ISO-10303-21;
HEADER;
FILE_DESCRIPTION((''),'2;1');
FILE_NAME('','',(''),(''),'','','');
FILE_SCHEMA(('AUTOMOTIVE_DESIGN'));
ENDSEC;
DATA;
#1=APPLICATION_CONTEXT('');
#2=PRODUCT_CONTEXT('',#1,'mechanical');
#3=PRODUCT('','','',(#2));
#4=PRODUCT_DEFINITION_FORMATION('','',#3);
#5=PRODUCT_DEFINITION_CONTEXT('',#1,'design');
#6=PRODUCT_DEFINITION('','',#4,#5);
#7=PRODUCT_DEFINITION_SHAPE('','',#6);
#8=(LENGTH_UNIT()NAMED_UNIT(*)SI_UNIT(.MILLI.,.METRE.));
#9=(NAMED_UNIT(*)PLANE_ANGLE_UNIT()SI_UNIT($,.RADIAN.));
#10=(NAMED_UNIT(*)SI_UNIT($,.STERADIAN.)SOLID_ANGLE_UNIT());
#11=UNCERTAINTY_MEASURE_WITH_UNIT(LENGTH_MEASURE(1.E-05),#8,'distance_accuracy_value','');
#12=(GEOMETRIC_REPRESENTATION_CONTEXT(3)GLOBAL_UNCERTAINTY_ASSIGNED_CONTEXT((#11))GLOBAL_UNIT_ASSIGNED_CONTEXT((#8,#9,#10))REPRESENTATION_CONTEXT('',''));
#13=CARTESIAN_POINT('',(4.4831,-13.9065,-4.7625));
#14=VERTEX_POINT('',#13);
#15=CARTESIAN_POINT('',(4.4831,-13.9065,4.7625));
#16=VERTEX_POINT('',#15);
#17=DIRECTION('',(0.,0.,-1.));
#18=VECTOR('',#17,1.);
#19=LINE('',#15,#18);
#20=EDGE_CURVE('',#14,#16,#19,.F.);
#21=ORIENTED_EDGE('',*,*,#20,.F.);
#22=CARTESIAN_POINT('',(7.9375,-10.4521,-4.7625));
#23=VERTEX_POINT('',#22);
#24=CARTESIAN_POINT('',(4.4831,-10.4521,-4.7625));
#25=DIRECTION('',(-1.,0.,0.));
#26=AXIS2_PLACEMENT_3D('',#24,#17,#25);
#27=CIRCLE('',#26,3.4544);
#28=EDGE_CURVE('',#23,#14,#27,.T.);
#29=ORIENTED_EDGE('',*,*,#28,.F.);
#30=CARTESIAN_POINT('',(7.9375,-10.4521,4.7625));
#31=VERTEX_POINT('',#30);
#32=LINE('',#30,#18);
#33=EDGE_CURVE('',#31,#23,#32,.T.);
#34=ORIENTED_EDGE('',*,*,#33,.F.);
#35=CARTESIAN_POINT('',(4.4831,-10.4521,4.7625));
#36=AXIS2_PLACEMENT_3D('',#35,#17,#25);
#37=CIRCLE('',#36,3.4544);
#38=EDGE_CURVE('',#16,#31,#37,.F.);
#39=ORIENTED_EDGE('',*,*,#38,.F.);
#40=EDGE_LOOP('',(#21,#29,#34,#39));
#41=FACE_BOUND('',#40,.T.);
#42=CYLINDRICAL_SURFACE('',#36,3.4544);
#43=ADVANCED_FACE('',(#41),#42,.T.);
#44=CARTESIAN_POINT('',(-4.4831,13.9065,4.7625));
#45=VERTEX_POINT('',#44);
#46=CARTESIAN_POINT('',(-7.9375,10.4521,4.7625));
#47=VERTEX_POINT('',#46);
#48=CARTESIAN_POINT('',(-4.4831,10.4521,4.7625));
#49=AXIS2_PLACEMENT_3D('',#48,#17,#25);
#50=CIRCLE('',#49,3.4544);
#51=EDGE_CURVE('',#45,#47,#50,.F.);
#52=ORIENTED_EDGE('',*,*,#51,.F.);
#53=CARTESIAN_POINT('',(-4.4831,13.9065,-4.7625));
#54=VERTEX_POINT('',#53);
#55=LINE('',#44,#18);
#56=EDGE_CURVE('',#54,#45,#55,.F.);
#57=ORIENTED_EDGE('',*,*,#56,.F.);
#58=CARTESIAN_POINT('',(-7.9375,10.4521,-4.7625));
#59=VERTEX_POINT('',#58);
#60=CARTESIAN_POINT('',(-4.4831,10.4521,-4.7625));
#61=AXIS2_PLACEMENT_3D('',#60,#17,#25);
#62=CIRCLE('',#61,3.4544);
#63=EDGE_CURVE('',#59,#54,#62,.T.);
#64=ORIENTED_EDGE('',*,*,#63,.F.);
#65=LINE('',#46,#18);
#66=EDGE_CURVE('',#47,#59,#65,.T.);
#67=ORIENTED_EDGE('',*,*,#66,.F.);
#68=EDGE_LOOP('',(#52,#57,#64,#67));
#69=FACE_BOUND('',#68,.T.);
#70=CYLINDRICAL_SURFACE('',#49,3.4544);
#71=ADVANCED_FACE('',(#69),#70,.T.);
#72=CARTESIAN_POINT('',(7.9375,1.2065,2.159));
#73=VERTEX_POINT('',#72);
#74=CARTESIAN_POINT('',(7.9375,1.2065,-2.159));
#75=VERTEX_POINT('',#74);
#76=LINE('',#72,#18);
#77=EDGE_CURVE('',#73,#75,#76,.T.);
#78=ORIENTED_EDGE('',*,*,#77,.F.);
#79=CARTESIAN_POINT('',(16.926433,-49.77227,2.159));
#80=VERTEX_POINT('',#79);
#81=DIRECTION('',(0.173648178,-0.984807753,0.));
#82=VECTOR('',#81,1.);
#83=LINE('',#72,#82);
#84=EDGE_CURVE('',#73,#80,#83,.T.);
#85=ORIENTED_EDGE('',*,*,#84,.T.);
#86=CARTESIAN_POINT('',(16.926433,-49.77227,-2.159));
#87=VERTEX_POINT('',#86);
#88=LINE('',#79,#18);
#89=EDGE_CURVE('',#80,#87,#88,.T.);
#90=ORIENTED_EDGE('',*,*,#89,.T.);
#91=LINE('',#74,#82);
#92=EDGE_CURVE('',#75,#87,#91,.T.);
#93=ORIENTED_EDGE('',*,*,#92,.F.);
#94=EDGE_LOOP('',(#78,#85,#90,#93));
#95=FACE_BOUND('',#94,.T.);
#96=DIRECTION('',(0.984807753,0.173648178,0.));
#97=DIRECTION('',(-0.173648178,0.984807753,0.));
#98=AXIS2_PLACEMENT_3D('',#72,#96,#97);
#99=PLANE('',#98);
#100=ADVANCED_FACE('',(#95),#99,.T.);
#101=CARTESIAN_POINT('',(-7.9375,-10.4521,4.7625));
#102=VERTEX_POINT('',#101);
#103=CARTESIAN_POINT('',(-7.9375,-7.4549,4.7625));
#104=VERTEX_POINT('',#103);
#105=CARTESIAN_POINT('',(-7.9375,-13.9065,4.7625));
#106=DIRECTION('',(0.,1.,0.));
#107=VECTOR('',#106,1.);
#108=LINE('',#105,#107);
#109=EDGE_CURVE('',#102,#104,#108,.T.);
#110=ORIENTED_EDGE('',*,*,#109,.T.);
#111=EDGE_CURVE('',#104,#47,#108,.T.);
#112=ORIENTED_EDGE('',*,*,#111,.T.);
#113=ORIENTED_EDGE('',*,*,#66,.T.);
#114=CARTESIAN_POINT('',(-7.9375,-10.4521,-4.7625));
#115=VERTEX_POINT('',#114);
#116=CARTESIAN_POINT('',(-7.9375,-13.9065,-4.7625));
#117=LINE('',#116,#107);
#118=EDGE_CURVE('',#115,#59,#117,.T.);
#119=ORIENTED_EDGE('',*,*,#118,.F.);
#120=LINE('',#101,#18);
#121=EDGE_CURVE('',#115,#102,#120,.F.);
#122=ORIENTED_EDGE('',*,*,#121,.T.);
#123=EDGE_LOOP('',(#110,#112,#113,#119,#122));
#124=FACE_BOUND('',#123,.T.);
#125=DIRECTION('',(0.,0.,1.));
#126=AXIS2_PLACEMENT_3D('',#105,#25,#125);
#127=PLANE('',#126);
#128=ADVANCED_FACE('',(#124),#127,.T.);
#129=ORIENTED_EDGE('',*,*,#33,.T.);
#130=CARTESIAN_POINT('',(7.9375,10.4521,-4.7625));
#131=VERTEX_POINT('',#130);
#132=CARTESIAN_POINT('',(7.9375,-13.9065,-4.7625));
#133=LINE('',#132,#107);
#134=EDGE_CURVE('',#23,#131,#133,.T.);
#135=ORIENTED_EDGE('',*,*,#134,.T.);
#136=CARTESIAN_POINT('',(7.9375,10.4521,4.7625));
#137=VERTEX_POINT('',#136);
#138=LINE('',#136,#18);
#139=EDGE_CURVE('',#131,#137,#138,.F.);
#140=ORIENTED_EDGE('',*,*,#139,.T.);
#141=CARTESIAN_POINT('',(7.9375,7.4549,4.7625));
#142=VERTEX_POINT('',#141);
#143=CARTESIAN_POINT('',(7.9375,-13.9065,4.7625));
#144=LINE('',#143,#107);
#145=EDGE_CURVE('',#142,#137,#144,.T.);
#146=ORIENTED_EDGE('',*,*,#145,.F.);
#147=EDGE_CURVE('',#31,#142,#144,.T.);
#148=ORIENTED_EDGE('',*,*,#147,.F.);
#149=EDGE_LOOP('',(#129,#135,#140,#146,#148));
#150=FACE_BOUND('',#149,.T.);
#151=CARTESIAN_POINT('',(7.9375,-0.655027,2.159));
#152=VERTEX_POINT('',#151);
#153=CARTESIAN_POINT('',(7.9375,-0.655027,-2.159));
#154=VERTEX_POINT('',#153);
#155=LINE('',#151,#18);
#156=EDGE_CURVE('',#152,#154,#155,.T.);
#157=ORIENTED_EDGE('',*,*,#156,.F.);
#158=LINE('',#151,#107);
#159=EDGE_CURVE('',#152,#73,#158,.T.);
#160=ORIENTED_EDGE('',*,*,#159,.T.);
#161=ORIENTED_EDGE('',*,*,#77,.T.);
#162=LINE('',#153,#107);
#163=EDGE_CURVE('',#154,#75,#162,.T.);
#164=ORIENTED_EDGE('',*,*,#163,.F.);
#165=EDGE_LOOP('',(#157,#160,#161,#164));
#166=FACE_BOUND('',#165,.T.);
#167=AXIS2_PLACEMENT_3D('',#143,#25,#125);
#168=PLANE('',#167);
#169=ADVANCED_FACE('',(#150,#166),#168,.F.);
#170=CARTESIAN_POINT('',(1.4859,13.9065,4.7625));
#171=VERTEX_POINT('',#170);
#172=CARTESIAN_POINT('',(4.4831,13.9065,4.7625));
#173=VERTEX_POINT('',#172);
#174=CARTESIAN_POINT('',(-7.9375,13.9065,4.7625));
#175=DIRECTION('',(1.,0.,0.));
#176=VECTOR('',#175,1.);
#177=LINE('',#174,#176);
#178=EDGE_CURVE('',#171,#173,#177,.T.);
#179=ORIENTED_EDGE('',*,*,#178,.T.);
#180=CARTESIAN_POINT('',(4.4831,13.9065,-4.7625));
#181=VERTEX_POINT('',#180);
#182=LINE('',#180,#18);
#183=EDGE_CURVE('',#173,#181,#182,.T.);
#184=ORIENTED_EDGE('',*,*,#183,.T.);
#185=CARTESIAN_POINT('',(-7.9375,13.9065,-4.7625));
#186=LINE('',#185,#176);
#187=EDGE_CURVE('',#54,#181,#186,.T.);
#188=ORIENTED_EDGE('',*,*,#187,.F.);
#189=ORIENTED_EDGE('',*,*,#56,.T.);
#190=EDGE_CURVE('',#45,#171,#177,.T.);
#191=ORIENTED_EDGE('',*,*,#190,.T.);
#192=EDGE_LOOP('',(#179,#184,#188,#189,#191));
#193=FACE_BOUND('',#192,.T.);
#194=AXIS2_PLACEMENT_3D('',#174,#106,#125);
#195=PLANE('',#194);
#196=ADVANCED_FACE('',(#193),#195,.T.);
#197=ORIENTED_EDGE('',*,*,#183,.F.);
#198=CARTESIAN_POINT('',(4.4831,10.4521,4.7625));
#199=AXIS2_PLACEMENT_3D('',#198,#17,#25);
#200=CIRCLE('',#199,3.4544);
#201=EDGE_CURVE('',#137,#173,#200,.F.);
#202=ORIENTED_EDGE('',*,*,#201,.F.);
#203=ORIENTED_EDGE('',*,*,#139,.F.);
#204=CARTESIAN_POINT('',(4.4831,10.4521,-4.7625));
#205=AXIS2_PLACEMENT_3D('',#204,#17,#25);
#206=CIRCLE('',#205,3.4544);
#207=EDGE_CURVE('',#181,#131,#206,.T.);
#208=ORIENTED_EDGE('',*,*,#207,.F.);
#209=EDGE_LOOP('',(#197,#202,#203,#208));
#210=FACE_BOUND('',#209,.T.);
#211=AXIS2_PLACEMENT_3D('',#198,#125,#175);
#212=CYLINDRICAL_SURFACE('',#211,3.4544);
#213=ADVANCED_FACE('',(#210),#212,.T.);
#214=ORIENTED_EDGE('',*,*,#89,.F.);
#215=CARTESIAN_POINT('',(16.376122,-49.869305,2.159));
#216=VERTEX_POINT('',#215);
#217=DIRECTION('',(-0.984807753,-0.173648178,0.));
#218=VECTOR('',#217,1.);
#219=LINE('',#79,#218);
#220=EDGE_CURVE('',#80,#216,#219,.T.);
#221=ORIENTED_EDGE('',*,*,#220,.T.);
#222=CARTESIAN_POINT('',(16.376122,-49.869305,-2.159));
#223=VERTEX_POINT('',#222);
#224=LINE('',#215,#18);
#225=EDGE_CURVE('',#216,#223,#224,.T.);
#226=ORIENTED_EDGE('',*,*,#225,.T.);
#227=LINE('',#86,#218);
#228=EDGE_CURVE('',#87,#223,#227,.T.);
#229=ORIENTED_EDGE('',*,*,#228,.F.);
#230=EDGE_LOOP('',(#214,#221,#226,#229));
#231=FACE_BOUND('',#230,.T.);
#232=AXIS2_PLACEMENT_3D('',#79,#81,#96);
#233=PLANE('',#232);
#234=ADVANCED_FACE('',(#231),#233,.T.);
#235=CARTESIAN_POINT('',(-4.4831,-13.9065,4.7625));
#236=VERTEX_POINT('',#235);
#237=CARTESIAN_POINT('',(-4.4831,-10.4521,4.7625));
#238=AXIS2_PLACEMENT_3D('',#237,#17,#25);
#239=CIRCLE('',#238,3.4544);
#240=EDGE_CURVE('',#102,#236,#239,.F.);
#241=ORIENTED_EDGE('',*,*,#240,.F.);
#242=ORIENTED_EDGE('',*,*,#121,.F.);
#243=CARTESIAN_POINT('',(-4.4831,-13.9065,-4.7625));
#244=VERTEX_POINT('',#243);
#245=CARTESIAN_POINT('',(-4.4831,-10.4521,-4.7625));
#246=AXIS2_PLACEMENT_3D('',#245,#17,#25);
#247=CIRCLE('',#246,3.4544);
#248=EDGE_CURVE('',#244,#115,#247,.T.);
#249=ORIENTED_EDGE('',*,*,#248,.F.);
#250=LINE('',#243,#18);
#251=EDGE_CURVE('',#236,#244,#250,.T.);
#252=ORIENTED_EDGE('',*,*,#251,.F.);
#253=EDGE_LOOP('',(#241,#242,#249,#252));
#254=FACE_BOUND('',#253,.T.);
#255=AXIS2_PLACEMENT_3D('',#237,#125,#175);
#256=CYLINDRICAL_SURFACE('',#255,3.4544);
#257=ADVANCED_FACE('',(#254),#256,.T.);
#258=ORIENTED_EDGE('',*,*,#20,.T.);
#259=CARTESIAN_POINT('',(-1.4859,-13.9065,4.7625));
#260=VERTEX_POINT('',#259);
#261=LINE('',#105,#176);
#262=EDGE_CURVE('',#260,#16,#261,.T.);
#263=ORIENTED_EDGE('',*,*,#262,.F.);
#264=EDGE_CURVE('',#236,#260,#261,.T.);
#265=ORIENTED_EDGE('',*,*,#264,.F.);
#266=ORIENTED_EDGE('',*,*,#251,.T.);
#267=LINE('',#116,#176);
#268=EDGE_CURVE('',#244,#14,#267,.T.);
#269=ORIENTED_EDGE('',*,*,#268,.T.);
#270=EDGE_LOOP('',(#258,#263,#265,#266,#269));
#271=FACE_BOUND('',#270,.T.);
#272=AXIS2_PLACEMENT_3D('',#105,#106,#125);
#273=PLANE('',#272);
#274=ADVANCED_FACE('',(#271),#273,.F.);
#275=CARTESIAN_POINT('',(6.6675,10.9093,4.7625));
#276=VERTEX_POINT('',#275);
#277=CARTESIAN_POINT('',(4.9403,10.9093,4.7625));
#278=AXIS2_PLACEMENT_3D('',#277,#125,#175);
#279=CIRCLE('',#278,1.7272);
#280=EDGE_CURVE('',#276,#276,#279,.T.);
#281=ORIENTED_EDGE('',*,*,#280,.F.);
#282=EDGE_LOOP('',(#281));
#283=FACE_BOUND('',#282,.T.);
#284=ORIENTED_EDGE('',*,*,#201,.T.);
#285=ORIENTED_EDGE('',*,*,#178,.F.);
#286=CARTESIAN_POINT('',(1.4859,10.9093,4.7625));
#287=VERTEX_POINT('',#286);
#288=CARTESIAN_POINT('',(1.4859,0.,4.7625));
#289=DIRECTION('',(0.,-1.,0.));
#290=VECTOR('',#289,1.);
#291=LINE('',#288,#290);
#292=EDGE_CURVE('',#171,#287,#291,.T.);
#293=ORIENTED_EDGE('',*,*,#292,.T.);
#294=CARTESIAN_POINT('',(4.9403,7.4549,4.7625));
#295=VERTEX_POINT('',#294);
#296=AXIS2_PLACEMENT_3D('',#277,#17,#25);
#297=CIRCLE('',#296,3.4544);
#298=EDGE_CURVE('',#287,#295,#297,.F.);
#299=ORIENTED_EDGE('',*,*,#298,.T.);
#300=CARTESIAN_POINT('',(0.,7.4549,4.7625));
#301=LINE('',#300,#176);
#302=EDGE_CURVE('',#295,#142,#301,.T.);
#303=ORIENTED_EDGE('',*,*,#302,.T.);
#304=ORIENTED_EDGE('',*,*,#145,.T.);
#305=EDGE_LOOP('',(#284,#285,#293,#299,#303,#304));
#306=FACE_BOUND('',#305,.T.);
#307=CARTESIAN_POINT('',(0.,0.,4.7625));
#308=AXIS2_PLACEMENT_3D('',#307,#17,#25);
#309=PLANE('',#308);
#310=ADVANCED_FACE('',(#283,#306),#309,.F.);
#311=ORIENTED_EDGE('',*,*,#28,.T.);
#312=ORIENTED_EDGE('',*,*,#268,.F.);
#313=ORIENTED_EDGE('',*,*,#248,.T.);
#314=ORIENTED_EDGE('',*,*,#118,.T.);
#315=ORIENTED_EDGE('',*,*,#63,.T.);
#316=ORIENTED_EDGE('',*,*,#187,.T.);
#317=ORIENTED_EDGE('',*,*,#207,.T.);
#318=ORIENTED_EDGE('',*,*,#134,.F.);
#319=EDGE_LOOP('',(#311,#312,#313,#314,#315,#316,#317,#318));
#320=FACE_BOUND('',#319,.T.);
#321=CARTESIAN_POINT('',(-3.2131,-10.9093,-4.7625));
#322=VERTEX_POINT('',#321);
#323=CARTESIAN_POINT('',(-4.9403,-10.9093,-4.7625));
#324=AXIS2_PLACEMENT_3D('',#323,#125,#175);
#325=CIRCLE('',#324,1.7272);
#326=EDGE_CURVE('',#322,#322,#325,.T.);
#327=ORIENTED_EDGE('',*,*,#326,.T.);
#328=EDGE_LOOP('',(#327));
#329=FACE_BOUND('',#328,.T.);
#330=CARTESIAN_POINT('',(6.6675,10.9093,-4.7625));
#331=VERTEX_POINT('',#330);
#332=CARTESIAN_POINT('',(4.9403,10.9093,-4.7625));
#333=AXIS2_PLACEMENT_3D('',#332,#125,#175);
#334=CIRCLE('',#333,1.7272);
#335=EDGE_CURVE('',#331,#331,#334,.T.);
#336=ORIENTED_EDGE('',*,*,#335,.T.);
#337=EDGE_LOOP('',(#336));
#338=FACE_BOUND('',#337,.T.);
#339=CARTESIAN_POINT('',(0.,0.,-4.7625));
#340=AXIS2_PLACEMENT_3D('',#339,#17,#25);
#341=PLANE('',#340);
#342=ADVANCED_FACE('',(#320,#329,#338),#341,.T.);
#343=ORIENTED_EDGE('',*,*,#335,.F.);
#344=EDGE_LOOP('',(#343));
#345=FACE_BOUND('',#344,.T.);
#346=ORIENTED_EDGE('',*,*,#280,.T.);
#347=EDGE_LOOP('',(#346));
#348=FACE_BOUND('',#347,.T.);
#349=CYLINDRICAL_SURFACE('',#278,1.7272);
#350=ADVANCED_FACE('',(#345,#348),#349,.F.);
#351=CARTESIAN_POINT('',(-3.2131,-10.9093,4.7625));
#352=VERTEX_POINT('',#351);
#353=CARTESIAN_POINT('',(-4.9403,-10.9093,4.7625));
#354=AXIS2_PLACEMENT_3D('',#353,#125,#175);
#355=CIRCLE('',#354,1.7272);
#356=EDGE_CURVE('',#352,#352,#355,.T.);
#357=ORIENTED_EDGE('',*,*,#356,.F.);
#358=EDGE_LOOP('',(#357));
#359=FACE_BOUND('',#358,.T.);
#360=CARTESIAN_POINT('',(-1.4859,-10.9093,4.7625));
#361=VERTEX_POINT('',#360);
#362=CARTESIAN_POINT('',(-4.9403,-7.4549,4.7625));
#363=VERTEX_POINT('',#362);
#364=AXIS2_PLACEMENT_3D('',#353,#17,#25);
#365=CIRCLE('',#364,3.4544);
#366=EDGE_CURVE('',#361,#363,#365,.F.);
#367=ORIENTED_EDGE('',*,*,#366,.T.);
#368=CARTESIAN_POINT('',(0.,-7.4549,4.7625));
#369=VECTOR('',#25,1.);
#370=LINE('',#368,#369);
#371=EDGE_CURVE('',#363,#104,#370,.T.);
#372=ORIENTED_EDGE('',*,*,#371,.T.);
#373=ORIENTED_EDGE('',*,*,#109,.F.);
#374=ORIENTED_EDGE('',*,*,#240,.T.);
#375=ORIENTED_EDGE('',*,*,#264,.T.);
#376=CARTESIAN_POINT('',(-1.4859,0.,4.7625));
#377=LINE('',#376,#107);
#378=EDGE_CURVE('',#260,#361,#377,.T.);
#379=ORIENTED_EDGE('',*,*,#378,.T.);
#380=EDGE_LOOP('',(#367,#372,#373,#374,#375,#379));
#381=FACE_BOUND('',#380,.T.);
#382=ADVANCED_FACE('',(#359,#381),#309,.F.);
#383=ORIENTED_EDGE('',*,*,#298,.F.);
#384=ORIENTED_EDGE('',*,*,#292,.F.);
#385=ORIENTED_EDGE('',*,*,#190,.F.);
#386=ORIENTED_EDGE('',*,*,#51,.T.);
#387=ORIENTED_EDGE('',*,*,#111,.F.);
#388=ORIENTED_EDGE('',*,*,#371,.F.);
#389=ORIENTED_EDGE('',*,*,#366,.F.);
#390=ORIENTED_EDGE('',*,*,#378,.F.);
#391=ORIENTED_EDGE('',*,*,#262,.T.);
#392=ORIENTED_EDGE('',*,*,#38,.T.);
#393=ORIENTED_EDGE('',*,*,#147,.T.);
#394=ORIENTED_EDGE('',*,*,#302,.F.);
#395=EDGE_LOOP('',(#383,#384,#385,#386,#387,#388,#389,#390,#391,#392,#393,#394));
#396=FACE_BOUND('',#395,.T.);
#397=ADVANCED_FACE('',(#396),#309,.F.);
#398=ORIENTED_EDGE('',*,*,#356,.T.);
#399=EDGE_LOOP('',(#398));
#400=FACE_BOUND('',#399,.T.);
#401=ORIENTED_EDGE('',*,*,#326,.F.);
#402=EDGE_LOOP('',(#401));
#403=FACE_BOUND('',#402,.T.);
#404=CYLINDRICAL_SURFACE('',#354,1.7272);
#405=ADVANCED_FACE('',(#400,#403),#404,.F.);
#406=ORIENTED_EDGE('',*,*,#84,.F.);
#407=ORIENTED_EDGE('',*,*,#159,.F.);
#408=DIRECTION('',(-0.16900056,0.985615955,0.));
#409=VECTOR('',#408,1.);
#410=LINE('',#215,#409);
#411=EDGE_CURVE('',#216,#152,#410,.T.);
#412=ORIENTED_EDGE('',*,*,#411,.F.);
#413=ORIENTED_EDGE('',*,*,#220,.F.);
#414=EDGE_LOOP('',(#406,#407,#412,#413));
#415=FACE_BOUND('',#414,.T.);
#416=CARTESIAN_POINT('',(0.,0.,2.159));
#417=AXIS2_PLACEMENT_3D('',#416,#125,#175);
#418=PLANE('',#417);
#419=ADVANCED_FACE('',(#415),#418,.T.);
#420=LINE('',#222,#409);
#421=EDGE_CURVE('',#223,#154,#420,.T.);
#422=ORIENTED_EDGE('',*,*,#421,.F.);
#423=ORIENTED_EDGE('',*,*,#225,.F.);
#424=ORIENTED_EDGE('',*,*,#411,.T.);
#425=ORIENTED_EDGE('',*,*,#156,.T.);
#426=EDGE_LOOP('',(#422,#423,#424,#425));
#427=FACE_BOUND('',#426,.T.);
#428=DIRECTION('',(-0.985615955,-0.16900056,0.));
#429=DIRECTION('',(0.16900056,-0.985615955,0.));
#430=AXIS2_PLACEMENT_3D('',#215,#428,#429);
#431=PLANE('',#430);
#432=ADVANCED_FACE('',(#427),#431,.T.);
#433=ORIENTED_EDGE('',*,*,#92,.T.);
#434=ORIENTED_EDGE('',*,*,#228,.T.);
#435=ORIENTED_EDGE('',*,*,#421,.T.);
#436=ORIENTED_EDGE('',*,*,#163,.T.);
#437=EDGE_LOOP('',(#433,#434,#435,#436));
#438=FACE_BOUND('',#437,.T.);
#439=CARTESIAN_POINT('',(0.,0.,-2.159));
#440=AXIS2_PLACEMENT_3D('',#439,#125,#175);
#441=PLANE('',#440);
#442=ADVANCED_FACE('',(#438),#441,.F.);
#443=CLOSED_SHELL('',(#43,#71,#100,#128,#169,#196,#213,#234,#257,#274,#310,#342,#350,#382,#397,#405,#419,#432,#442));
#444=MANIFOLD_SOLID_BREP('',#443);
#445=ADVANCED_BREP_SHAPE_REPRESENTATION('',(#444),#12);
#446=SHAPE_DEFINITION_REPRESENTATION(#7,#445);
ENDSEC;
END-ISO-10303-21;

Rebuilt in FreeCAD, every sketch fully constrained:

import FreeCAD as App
import Part
import Sketcher

V = App.Vector
Q = App.Units.Quantity


def edges_at(feature, points):
    """Names of the edges that pass closest to the given points."""
    edges = feature.Shape.Edges
    near = lambda p: min(range(len(edges)), key=lambda i: edges[i].distToShape(Part.Vertex(*p))[0])
    return sorted({f"Edge{near(p) + 1}" for p in points})


def add_polygon(sketch, points):
    """Adds a closed chain of lines whose ends are joined by coincident constraints."""
    first, n = sketch.GeometryCount, len(points)
    for a, b in zip(points, points[1:] + points[:1]):
        sketch.addGeometry(Part.LineSegment(App.Vector(*a, 0), App.Vector(*b, 0)), False)
    for i in range(n):
        sketch.addConstraint(Sketcher.Constraint("Coincident", first + i, 2, first + (i + 1) % n, 1))

doc = App.newDocument("Part")
body = doc.addObject("PartDesign::Body", "Body")

# Sketch on XY plane
sketch1 = doc.addObject("Sketcher::SketchObject", "Sketch")
body.addObject(sketch1)
sketch1.AttachmentSupport = (doc.XY_Plane, [""])
sketch1.MapMode = "FlatFace"
add_polygon(sketch1, [(-8, 14), (-8, -14), (8, -14), (8, 14)])  # lines 0-3
sketch1.addConstraint(Sketcher.Constraint("Vertical", 0))
sketch1.addConstraint(Sketcher.Constraint("Horizontal", 1))
sketch1.addConstraint(Sketcher.Constraint("Vertical", 2))
sketch1.addConstraint(Sketcher.Constraint("Horizontal", 3))
sketch1.addConstraint(Sketcher.Constraint("Symmetric", 0, 2, 2, 2, -1, 1))
sketch1.addConstraint(Sketcher.Constraint("DistanceX", 1, 1, 1, 2, Q("0.625 in")))
sketch1.addConstraint(Sketcher.Constraint("DistanceY", 0, 2, 0, 1, Q("1.095 in")))
pad1 = doc.addObject("PartDesign::Pad", "Pad")
body.addObject(pad1)
pad1.Profile = sketch1
pad1.Length = Q("0.375 in")
pad1.Midplane = True

# Sketch on XY plane
sketch2 = doc.addObject("Sketcher::SketchObject", "Sketch001")
body.addObject(sketch2)
sketch2.AttachmentSupport = (doc.XY_Plane, [""])
sketch2.MapMode = "FlatFace"
add_polygon(sketch2, [(16.9, -49.8), (7.9, 1.2), (7.9, -0.7), (16.4, -49.9)])  # lines 0-3
sketch2.addConstraint(Sketcher.Constraint("Vertical", 1))
sketch2.addConstraint(Sketcher.Constraint("Perpendicular", 0, 3))
sketch2.addConstraint(Sketcher.Constraint("Angle", 0, Q("100 deg")))
sketch2.addConstraint(Sketcher.Constraint("Distance", 0, Q("2.038 in")))
sketch2.addConstraint(Sketcher.Constraint("Distance", 3, Q("0.022 in")))
sketch2.addConstraint(Sketcher.Constraint("DistanceX", -1, 1, 0, 2, Q("0.3125 in")))
sketch2.addConstraint(Sketcher.Constraint("DistanceY", -1, 1, 0, 2, Q("0.0475 in")))
sketch2.addConstraint(Sketcher.Constraint("Distance", 2, Q("49.932509 mm")))
pad2 = doc.addObject("PartDesign::Pad", "Pad001")
body.addObject(pad2)
pad2.Profile = sketch2
pad2.Length = Q("0.17 in")
pad2.Midplane = True

# Sketch on XY plane
sketch3 = doc.addObject("Sketcher::SketchObject", "Sketch002")
body.addObject(sketch3)
sketch3.AttachmentSupport = (doc.XY_Plane, [""])
sketch3.MapMode = "FlatFace"
sketch3.AttachmentOffset = App.Placement(V(0, 0, 0.1875 * 25.4), App.Rotation())
sketch3.addGeometry(Part.Circle(V(-4.9, -10.9, 0), V(0, 0, 1), 1.7), False)
sketch3.addGeometry(Part.Circle(V(4.9, 10.9, 0), V(0, 0, 1), 1.7), False)
sketch3.addConstraint(Sketcher.Constraint("Equal", 0, 1))
sketch3.addConstraint(Sketcher.Constraint("Symmetric", 0, 3, 1, 3, -1, 1))
sketch3.addConstraint(Sketcher.Constraint("Diameter", 0, Q("0.136 in")))
sketch3.addConstraint(Sketcher.Constraint("DistanceX", 0, 3, 1, 3, Q("0.389 in")))
sketch3.addConstraint(Sketcher.Constraint("DistanceY", 0, 3, 1, 3, Q("0.859 in")))
doc.recompute()
hole = doc.addObject("PartDesign::Hole", "Hole")
body.addObject(hole)
hole.Profile = sketch3
hole.ThreadType = "None"
hole.Diameter = Q("0.136 in")
hole.DepthType = "ThroughAll"
doc.recompute()

fillet = doc.addObject("PartDesign::Fillet", "Fillet")
body.addObject(fillet)
fillet.Base = (hole, edges_at(hole, [
    (-7.938, -13.906, 0),
    (7.938, -13.906, 0),
    (7.938, 13.906, 0),
    (-7.938, 13.906, 0),
]))
fillet.Radius = Q("0.136 in")

doc.recompute()
